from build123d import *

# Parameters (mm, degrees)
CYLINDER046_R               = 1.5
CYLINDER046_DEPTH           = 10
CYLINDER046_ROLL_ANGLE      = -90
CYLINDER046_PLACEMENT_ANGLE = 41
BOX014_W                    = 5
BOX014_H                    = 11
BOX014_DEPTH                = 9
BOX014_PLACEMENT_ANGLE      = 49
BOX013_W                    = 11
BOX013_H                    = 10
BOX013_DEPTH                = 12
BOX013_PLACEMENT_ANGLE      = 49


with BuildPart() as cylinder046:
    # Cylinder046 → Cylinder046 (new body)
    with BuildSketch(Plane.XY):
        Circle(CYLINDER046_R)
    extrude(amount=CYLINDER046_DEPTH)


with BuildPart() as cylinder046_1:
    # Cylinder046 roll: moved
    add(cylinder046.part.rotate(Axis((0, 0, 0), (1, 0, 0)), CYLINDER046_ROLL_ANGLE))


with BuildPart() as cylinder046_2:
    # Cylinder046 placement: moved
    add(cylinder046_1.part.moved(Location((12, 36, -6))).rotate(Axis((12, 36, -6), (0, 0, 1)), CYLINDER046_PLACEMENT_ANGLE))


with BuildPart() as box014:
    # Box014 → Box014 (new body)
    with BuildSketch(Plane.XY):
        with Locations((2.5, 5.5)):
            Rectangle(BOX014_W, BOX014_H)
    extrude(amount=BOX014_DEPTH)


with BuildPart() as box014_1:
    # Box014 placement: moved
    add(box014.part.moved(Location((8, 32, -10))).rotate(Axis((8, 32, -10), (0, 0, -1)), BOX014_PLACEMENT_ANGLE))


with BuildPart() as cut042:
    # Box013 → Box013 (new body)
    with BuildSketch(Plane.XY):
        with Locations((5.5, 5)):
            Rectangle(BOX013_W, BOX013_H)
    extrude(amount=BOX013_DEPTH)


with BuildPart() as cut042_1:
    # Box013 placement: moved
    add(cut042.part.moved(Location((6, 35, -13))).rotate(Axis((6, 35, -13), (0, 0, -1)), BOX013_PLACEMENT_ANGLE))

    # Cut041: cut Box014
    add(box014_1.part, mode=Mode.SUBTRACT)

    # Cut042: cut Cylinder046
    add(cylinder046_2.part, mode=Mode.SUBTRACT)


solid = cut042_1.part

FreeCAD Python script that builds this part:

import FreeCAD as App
import Part
import Sketcher

V = App.Vector
Q = App.Units.Quantity

doc = App.newDocument("Part")
params = doc.addObject("Spreadsheet::Sheet", "Params")
for row, (alias, value) in enumerate([
    ("sketch1_diameter", "3 mm"),
    ("pad1_length", "10 mm"),
    ("sketch2_width", "5 mm"),
    ("sketch2_height", "11 mm"),
    ("pad2_length", "9 mm"),
    ("sketch3_width", "11 mm"),
    ("sketch3_height", "10 mm"),
    ("pad3_length", "12 mm"),
], start=1):
    params.set(f"A{row}", alias)
    params.set(f"B{row}", "=" + value)
    params.setAlias(f"B{row}", alias)

body = doc.addObject("PartDesign::Body", "Body")

# Sketch on XY plane
sketch1 = body.newObject("Sketcher::SketchObject", "Sketch")
sketch1.AttachmentSupport = (doc.getObject("XY_Plane"), [""])
sketch1.MapMode = "FlatFace"
sketch1.addGeometry(Part.Circle(V(0, 0, 0), V(0, 0, 1), 1.5), False)
sketch1.addConstraint([
    Sketcher.Constraint("Coincident", 0, 3, -1, 1),
    Sketcher.Constraint("Diameter", 0, Q("3 mm")),
])
sketch1.setExpression("Constraints[1]", "Params.sketch1_diameter")
pad1 = body.newObject("PartDesign::Pad", "Pad")
pad1.Profile = sketch1
pad1.setExpression("Length", "Params.pad1_length")
body2 = doc.addObject("PartDesign::Body", "Body001")
doc.recompute()

body.Placement = App.Placement(V(0, 0, 0), App.Rotation(V(1, 0, 0), 270))
boolean = body2.newObject("PartDesign::Boolean", "Boolean")
boolean.Type = "Fuse"
boolean.addObjects([body])
body3 = doc.addObject("PartDesign::Body", "Body002")
doc.recompute()

body2.Placement = App.Placement(V(12, 36, -6), App.Rotation(V(0, 0, 1), 41))
boolean2 = body3.newObject("PartDesign::Boolean", "Boolean001")
boolean2.Type = "Fuse"
boolean2.addObjects([body2])
body4 = doc.addObject("PartDesign::Body", "Body003")

# Sketch on XY plane
sketch2 = body4.newObject("Sketcher::SketchObject", "Sketch001")
sketch2.AttachmentSupport = (doc.getObject("XY_Plane003"), [""])
sketch2.MapMode = "FlatFace"
sketch2.addGeometry([
    Part.LineSegment(V(0, 11, 0), V(0, 0, 0)),
    Part.LineSegment(V(0, 0, 0), V(5, 0, 0)),
    Part.LineSegment(V(5, 0, 0), V(5, 11, 0)),
    Part.LineSegment(V(5, 11, 0), V(0, 11, 0)),
], False)
sketch2.addConstraint([
    Sketcher.Constraint("Coincident", 0, 2, 1, 1),
    Sketcher.Constraint("Coincident", 1, 2, 2, 1),
    Sketcher.Constraint("Coincident", 2, 2, 3, 1),
    Sketcher.Constraint("Coincident", 3, 2, 0, 1),
    Sketcher.Constraint("Vertical", 0),
    Sketcher.Constraint("Horizontal", 1),
    Sketcher.Constraint("Vertical", 2),
    Sketcher.Constraint("Horizontal", 3),
    Sketcher.Constraint("Coincident", 0, 2, -1, 1),
    Sketcher.Constraint("DistanceX", 1, 1, 1, 2, Q("5 mm")),
    Sketcher.Constraint("DistanceY", 0, 2, 0, 1, Q("11 mm")),
])
sketch2.setExpression("Constraints[9]", "Params.sketch2_width")
sketch2.setExpression("Constraints[10]", "Params.sketch2_height")
pad2 = body4.newObject("PartDesign::Pad", "Pad001")
pad2.Profile = sketch2
pad2.setExpression("Length", "Params.pad2_length")
body5 = doc.addObject("PartDesign::Body", "Body004")
doc.recompute()

body4.Placement = App.Placement(V(8, 32, -10), App.Rotation(V(0, 0, -1), 49))
boolean3 = body5.newObject("PartDesign::Boolean", "Boolean002")
boolean3.Type = "Fuse"
boolean3.addObjects([body4])
body6 = doc.addObject("PartDesign::Body", "Body005")

# Sketch on XY plane
sketch3 = body6.newObject("Sketcher::SketchObject", "Sketch002")
sketch3.AttachmentSupport = (doc.getObject("XY_Plane005"), [""])
sketch3.MapMode = "FlatFace"
sketch3.addGeometry([
    Part.LineSegment(V(0, 10, 0), V(0, 0, 0)),
    Part.LineSegment(V(0, 0, 0), V(11, 0, 0)),
    Part.LineSegment(V(11, 0, 0), V(11, 10, 0)),
    Part.LineSegment(V(11, 10, 0), V(0, 10, 0)),
], False)
sketch3.addConstraint([
    Sketcher.Constraint("Coincident", 0, 2, 1, 1),
    Sketcher.Constraint("Coincident", 1, 2, 2, 1),
    Sketcher.Constraint("Coincident", 2, 2, 3, 1),
    Sketcher.Constraint("Coincident", 3, 2, 0, 1),
    Sketcher.Constraint("Vertical", 0),
    Sketcher.Constraint("Horizontal", 1),
    Sketcher.Constraint("Vertical", 2),
    Sketcher.Constraint("Horizontal", 3),
    Sketcher.Constraint("Coincident", 0, 2, -1, 1),
    Sketcher.Constraint("DistanceX", 1, 1, 1, 2, Q("11 mm")),
    Sketcher.Constraint("DistanceY", 0, 2, 0, 1, Q("10 mm")),
])
sketch3.setExpression("Constraints[9]", "Params.sketch3_width")
sketch3.setExpression("Constraints[10]", "Params.sketch3_height")
pad3 = body6.newObject("PartDesign::Pad", "Pad002")
pad3.Profile = sketch3
pad3.setExpression("Length", "Params.pad3_length")
body7 = doc.addObject("PartDesign::Body", "Body006")
doc.recompute()

body6.Placement = App.Placement(V(6, 35, -13), App.Rotation(V(0, 0, -1), 49))
boolean4 = body7.newObject("PartDesign::Boolean", "Boolean003")
boolean4.Type = "Fuse"
boolean4.addObjects([body6])
doc.recompute()

boolean5 = body7.newObject("PartDesign::Boolean", "Boolean004")
boolean5.Type = "Cut"
boolean5.addObjects([body5])
doc.recompute()

boolean6 = body7.newObject("PartDesign::Boolean", "Boolean005")
boolean6.Type = "Cut"
boolean6.addObjects([body3])

doc.recompute()
